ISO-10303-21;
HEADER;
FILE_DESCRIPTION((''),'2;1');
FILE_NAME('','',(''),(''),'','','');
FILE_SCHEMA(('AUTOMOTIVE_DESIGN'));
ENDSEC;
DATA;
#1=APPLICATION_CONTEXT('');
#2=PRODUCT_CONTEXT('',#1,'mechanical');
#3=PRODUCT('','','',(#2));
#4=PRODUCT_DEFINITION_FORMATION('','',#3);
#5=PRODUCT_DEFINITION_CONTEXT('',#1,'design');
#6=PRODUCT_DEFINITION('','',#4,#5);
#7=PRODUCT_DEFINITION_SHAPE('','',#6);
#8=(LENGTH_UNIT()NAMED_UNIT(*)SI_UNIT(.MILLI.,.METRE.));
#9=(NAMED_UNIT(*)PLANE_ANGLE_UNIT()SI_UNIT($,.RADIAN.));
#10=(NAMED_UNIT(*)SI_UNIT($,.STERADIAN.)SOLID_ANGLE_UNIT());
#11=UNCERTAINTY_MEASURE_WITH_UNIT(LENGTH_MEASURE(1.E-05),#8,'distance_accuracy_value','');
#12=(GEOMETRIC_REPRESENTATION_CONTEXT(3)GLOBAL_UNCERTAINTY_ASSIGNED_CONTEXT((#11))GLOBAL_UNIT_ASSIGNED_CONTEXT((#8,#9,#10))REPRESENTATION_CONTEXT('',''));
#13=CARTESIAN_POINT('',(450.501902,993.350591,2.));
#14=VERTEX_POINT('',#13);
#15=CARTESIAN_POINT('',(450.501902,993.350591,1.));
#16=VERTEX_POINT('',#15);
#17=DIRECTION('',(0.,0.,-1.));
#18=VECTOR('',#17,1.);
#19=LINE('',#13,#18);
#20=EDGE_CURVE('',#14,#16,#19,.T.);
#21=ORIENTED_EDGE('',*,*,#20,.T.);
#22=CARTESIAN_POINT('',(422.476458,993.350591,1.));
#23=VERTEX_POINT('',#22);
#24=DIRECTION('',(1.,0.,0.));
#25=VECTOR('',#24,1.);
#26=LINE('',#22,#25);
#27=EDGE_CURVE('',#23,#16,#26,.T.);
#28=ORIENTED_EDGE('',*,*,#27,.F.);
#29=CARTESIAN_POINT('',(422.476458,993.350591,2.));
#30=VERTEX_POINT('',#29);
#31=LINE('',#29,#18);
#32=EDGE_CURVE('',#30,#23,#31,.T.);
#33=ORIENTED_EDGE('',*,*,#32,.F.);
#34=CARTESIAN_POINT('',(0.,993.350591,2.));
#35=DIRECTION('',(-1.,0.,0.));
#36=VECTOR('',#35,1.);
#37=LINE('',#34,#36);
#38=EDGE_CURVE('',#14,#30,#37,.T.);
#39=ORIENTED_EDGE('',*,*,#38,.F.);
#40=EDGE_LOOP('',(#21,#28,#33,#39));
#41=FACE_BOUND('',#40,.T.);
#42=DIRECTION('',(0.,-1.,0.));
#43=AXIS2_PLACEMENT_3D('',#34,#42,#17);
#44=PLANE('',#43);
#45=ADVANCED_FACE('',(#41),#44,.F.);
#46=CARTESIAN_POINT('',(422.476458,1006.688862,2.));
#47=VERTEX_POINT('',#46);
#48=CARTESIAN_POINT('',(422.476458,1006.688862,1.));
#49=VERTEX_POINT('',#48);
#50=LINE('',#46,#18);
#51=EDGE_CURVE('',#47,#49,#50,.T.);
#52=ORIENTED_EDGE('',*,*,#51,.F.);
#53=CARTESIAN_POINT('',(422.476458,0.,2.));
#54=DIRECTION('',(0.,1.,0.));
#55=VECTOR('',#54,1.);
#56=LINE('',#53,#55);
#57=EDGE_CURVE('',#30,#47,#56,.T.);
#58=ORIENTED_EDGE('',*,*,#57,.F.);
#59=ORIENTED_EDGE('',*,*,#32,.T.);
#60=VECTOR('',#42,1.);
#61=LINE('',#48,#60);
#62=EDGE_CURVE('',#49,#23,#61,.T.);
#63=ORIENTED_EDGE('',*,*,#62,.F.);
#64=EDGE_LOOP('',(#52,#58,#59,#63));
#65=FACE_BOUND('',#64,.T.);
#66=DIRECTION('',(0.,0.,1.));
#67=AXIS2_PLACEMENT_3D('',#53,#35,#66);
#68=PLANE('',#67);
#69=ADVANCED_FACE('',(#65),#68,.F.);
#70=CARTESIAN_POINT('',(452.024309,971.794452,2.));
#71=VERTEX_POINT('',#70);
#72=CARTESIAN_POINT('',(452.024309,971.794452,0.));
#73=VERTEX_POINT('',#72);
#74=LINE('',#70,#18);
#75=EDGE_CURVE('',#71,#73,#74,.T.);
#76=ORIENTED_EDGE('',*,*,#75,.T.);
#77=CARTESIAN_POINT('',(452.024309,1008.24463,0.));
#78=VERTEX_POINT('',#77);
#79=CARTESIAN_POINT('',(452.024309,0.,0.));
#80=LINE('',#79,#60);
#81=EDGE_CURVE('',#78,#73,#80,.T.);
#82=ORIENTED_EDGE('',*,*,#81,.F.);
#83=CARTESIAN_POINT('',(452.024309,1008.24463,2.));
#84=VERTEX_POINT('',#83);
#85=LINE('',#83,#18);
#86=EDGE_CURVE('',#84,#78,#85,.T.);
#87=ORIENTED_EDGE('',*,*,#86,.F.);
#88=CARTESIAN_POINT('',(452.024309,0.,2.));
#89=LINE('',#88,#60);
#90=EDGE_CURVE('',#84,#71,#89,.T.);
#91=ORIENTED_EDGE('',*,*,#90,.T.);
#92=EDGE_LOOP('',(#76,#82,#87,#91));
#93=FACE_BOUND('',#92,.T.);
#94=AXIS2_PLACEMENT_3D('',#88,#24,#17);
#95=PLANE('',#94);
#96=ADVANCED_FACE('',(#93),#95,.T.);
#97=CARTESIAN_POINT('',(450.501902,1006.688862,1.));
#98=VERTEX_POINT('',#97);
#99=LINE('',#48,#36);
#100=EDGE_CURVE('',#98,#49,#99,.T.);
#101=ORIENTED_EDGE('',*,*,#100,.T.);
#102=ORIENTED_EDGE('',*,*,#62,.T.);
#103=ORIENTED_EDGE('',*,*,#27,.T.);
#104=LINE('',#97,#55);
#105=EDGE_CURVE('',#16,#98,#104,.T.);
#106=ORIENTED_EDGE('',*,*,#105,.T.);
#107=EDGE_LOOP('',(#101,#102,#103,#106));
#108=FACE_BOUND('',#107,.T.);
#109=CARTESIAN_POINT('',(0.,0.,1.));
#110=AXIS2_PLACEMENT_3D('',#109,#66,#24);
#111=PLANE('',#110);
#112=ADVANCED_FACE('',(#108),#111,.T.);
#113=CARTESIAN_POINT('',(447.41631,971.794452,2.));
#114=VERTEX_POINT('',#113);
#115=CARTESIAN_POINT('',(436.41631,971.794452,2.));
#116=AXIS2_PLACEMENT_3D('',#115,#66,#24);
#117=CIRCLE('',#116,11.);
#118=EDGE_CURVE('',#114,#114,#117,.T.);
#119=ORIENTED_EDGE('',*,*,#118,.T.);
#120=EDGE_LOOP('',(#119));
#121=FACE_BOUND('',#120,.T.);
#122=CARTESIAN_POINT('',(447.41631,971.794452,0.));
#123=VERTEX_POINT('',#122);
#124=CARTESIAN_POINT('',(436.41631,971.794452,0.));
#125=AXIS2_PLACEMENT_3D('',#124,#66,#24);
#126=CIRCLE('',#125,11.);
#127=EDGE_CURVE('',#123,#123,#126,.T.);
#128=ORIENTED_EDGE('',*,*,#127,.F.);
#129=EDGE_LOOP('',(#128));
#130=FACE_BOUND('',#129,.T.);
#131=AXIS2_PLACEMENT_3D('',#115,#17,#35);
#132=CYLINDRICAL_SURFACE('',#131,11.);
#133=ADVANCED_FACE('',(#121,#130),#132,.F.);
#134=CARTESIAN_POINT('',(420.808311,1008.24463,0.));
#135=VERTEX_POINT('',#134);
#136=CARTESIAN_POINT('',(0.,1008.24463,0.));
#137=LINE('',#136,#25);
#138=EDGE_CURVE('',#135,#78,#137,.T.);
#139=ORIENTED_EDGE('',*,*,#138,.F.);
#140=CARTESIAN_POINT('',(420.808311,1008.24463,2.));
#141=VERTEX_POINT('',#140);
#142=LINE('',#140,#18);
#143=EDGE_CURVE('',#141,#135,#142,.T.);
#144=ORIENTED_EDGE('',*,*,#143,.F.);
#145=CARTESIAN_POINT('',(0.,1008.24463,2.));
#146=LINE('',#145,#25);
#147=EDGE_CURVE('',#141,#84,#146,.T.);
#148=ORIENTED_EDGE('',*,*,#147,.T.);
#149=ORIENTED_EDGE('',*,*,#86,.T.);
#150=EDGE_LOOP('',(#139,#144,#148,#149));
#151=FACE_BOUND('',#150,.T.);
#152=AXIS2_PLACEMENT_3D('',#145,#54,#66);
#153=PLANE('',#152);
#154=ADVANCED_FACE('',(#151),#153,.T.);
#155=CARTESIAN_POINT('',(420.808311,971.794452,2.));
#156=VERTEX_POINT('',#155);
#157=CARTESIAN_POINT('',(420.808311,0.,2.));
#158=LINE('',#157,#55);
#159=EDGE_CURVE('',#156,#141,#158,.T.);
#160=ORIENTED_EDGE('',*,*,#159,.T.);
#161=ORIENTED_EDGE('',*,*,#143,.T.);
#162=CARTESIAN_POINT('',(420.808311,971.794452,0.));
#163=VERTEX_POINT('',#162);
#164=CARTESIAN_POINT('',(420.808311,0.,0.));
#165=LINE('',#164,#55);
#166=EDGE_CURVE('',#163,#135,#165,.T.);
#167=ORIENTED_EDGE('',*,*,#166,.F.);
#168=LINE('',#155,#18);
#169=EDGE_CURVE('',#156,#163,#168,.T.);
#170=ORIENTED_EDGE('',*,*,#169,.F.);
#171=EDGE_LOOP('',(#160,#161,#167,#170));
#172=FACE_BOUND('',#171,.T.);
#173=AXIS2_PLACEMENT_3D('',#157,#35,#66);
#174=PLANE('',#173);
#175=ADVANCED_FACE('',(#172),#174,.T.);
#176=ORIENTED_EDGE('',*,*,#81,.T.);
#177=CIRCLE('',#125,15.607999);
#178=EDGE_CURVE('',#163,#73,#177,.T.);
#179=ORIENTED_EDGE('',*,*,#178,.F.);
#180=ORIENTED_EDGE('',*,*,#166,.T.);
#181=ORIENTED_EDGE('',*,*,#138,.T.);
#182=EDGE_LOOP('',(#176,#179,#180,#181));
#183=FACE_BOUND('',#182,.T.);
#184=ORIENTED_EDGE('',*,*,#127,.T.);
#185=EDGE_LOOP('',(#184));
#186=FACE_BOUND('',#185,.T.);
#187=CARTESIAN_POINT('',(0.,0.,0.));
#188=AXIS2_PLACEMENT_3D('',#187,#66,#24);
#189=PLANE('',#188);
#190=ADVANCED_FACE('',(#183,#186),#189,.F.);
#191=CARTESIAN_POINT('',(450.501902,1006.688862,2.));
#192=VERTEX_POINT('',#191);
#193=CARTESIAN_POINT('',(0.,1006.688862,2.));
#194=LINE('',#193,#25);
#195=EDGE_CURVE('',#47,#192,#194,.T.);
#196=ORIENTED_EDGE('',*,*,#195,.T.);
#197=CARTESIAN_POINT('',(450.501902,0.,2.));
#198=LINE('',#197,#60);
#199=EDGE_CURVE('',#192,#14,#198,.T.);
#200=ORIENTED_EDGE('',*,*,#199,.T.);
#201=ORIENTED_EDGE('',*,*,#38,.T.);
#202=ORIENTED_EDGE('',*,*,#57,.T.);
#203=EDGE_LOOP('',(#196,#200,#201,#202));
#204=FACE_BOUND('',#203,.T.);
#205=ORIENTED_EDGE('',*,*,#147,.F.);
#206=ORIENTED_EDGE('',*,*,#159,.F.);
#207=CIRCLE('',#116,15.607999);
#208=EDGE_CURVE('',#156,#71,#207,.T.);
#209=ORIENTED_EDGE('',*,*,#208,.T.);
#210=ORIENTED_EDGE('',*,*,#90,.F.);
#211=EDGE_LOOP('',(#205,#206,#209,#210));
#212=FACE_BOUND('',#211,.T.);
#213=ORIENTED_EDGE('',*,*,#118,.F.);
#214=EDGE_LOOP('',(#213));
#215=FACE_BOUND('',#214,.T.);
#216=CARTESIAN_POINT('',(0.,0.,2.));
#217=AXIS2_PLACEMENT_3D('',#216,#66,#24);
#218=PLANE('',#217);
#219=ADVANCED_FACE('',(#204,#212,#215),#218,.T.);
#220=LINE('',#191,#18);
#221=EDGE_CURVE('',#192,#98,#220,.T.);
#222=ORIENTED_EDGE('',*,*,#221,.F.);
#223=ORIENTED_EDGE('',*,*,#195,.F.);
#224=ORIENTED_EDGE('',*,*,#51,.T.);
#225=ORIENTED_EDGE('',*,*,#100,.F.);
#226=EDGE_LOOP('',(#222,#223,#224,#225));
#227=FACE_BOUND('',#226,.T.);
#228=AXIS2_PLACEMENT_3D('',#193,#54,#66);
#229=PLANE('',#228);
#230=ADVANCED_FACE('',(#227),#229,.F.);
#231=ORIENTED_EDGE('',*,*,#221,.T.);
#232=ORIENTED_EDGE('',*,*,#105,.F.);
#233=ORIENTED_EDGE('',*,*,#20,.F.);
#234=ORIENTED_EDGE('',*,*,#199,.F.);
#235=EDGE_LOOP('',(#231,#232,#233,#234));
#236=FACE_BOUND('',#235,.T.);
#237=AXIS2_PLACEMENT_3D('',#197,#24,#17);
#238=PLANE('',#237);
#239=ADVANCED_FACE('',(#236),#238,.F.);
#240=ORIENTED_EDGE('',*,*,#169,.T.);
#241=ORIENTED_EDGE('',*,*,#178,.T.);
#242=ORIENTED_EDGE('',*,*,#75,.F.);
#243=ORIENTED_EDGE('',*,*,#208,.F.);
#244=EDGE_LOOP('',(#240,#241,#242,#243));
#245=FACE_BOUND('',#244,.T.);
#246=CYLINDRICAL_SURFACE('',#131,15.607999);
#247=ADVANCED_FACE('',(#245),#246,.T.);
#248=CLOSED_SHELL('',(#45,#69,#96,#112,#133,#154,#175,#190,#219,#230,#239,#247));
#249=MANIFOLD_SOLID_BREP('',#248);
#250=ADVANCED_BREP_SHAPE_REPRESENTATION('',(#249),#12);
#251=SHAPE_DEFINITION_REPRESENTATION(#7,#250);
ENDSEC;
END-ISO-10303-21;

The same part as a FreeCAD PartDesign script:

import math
import FreeCAD as App
import Part
import Sketcher
Q = App.Units.Quantity


def add_polygon(sketch, points):
    """Adds a closed chain of lines whose ends are joined by coincident constraints."""
    first, n = sketch.GeometryCount, len(points)
    for a, b in zip(points, points[1:] + points[:1]):
        sketch.addGeometry(Part.LineSegment(App.Vector(*a, 0), App.Vector(*b, 0)), False)
    for i in range(n):
        sketch.addConstraint(Sketcher.Constraint("Coincident", first + i, 2, first + (i + 1) % n, 1))

doc = App.newDocument("Part")
params = doc.addObject("Spreadsheet::Sheet", "Params")
for row, (alias, value) in enumerate([
    ("sketch1_diameter", "22 mm"),
    ("pad1_length", "2 mm"),
    ("pad2_length", "1 mm"),
], start=1):
    params.set(f"A{row}", alias)
    params.set(f"B{row}", "=" + value)
    params.setAlias(f"B{row}", alias)

body = doc.addObject("PartDesign::Body", "Body")

sketch1 = body.newObject("Sketcher::SketchObject", "Sketch")
sketch1.AttachmentSupport = (doc.getObject("XY_Plane"), [""])
sketch1.MapMode = "FlatFace"
sketch1.addGeometry(Part.LineSegment(App.Vector(421, 1008, 0), App.Vector(421, 972, 0)), False)
sketch1.addGeometry(Part.ArcOfCircle(Part.Circle(App.Vector(436, 972, 0), App.Vector(0, 0, 1), 16), math.radians(-180), math.radians(0)), False)
sketch1.addGeometry(Part.LineSegment(App.Vector(452, 972, 0), App.Vector(452, 1008, 0)), False)
sketch1.addGeometry(Part.LineSegment(App.Vector(452, 1008, 0), App.Vector(421, 1008, 0)), False)
sketch1.addGeometry(Part.Circle(App.Vector(436, 972, 0), App.Vector(0, 0, 1), 11), False)
add_polygon(sketch1, [(422, 993), (422, 1007), (451, 1007), (451, 993)])
sketch1.addConstraint([
    Sketcher.Constraint("Tangent", 0, 2, 1, 1),
    Sketcher.Constraint("Tangent", 1, 2, 2, 1),
    Sketcher.Constraint("Coincident", 2, 2, 3, 1),
    Sketcher.Constraint("Coincident", 3, 2, 0, 1),
    Sketcher.Constraint("Vertical", 0),
    Sketcher.Constraint("Vertical", 2),
    Sketcher.Constraint("Horizontal", 3),
    Sketcher.Constraint("Vertical", 5),
    Sketcher.Constraint("Horizontal", 6),
    Sketcher.Constraint("Vertical", 7),
    Sketcher.Constraint("Horizontal", 8),
    Sketcher.Constraint("Coincident", 4, 3, 1, 3),
    Sketcher.Constraint("Diameter", 4, Q("22 mm")),
    Sketcher.Constraint("Radius", 1, Q("15.607999 mm")),
    Sketcher.Constraint("DistanceY", 0, 2, 0, 1, Q("36.450178 mm")),
    Sketcher.Constraint("DistanceY", 5, 1, 5, 2, Q("13.338271 mm")),
    Sketcher.Constraint("DistanceX", 6, 1, 6, 2, Q("28.025444 mm")),
    Sketcher.Constraint("DistanceX", -1, 1, 1, 3, Q("436.41631 mm")),
    Sketcher.Constraint("DistanceY", -1, 1, 2, 2, Q("1008.24463 mm")),
    Sketcher.Constraint("DistanceX", -1, 1, 5, 2, Q("422.476458 mm")),
    Sketcher.Constraint("DistanceY", -1, 1, 7, 2, Q("993.350591 mm")),
])
sketch1.setExpression("Constraints[16]", "Params.sketch1_diameter")
pad1 = body.newObject("PartDesign::Pad", "Pad")
pad1.Profile = sketch1
pad1.setExpression("Length", "Params.pad1_length")

sketch2 = body.newObject("Sketcher::SketchObject", "Sketch001")
sketch2.AttachmentSupport = (doc.getObject("XY_Plane"), [""])
sketch2.MapMode = "FlatFace"
add_polygon(sketch2, [(422, 1007), (422, 993), (451, 993), (451, 1007)])
sketch2.addConstraint([
    Sketcher.Constraint("Vertical", 0),
    Sketcher.Constraint("Horizontal", 1),
    Sketcher.Constraint("Vertical", 2),
    Sketcher.Constraint("Horizontal", 3),
    Sketcher.Constraint("DistanceY", 0, 2, 0, 1, Q("13.338271 mm")),
    Sketcher.Constraint("DistanceX", 1, 1, 1, 2, Q("28.025444 mm")),
    Sketcher.Constraint("DistanceX", -1, 1, 0, 2, Q("422.476458 mm")),
    Sketcher.Constraint("DistanceY", -1, 1, 0, 2, Q("993.350591 mm")),
])
pad2 = body.newObject("PartDesign::Pad", "Pad001")
pad2.Profile = sketch2
pad2.setExpression("Length", "Params.pad2_length")

doc.recompute()
